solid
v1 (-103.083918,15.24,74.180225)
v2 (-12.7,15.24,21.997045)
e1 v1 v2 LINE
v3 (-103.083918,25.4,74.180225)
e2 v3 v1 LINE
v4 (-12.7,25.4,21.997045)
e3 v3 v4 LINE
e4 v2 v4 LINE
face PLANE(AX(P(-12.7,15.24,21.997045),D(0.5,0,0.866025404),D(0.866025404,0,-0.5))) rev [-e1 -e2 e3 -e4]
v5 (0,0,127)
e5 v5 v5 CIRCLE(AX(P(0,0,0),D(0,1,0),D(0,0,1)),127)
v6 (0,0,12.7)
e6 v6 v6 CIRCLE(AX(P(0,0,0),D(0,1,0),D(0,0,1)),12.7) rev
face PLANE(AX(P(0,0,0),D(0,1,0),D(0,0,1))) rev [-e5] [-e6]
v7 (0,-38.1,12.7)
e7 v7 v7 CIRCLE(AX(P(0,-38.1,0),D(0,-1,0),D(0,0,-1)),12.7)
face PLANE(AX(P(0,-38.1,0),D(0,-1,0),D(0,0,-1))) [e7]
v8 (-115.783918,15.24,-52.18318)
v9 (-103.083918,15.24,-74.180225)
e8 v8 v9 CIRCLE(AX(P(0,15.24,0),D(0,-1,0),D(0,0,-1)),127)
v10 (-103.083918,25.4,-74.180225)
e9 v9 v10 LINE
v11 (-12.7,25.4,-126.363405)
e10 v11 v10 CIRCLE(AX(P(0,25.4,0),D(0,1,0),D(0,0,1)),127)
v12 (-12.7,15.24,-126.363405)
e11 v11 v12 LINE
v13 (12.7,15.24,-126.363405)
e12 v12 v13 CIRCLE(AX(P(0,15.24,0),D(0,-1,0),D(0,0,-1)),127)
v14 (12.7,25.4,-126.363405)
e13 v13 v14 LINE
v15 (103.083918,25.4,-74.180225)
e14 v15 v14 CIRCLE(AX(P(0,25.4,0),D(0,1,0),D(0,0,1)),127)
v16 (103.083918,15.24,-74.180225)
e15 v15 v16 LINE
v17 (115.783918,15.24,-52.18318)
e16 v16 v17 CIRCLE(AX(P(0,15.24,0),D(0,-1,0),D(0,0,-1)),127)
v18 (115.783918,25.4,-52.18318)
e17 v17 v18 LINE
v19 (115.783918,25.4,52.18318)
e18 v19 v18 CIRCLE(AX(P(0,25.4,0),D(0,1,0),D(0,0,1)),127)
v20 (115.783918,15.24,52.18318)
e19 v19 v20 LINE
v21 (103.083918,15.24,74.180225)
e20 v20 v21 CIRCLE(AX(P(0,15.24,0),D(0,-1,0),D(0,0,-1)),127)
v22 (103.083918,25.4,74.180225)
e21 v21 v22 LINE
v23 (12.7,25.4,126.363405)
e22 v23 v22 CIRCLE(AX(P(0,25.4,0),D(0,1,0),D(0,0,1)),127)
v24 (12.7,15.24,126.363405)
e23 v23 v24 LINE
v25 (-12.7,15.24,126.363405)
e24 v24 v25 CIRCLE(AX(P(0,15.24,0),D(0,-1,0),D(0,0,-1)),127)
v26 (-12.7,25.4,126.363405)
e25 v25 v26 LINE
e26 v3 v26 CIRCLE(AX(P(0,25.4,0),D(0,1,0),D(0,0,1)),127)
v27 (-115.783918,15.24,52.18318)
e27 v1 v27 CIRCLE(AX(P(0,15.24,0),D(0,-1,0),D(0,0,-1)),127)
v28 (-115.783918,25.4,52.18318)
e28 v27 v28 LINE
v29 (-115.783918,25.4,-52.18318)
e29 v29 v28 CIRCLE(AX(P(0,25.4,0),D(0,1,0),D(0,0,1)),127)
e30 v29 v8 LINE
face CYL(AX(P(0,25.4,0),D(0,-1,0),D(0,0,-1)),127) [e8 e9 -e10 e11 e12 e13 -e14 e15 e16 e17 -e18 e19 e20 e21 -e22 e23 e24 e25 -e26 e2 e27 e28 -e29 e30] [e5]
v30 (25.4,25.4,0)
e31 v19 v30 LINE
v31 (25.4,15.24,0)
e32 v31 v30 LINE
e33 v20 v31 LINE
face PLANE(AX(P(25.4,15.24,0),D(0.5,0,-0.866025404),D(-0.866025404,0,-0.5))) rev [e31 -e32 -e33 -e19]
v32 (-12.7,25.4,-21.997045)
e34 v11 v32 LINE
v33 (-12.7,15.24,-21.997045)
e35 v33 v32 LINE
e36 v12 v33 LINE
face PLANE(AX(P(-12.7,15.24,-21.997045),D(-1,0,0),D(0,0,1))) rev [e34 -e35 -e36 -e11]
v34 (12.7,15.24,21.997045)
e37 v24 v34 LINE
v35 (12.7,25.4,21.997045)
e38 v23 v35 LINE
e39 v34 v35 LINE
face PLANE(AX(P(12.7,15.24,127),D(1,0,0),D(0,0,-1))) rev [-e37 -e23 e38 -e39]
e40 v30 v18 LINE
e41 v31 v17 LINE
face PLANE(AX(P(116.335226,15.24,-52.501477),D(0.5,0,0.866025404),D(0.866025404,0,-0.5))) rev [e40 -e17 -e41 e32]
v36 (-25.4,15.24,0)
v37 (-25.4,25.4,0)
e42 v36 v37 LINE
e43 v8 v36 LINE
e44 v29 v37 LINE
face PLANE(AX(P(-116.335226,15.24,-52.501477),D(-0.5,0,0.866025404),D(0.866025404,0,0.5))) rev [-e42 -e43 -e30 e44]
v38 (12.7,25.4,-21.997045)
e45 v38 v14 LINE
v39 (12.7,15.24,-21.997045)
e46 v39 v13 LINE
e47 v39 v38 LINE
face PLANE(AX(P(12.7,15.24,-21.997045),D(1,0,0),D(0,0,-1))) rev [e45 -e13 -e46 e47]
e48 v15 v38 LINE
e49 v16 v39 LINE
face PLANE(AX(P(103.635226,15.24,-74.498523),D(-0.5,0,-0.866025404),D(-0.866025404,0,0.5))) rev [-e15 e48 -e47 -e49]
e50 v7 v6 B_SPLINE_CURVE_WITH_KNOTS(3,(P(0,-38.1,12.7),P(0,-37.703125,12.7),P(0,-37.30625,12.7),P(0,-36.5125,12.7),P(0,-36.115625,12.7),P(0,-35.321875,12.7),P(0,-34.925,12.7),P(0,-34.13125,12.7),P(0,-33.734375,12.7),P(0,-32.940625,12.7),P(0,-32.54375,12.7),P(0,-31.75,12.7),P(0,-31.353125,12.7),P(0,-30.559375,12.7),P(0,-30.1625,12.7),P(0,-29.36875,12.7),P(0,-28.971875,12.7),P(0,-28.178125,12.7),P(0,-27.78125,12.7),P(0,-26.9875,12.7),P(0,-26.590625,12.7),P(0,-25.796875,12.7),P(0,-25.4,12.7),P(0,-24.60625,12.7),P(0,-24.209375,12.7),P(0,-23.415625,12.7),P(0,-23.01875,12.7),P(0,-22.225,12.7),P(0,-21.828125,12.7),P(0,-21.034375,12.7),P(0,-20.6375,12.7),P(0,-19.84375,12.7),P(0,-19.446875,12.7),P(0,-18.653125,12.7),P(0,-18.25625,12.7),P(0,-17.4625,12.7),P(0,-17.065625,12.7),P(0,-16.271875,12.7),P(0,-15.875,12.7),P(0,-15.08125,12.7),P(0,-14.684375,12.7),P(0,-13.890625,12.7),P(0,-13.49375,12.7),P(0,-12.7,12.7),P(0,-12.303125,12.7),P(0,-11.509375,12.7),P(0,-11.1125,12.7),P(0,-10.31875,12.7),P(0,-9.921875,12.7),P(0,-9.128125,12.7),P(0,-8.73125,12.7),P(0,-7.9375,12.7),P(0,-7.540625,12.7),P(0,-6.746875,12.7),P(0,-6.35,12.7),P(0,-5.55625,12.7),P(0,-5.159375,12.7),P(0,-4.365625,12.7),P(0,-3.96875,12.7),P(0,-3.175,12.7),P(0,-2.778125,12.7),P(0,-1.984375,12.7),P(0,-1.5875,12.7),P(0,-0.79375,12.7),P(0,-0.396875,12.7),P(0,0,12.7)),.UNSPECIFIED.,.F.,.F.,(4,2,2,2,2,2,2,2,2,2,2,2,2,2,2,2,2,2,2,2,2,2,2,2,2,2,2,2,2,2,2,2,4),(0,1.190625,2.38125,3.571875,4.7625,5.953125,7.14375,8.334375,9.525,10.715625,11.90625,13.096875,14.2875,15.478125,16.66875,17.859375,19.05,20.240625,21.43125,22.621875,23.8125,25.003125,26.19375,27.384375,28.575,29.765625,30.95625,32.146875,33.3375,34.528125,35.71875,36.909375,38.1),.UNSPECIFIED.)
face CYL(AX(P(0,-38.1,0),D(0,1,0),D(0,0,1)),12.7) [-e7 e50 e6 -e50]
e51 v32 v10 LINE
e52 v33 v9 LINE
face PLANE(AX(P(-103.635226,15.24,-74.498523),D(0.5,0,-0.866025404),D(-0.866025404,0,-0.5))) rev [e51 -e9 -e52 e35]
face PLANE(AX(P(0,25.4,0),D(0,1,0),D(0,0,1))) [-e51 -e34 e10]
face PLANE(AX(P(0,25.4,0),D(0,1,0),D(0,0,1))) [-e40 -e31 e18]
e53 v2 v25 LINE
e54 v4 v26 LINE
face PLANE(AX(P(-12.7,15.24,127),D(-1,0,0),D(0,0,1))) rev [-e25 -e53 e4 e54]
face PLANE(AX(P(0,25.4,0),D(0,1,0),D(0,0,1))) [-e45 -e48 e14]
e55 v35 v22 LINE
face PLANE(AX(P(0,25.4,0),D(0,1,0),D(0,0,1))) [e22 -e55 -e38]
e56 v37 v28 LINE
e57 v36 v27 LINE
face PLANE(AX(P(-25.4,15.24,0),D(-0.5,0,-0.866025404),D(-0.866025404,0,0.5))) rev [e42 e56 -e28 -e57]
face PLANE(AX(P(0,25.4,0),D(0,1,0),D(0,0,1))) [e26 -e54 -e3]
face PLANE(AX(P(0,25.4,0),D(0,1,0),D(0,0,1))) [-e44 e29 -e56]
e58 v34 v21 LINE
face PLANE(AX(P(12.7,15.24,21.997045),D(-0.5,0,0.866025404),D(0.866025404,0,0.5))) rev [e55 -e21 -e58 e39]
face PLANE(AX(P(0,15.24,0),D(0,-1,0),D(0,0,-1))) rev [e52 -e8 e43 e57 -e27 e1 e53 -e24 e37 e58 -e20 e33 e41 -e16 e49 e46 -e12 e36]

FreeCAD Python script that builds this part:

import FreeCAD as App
import Part
import Sketcher
from FreeCAD import Vector
Q = App.Units.Quantity

doc = App.newDocument("Part")
body = doc.addObject("PartDesign::Body", "Body")

sketch1 = doc.addObject("Sketcher::SketchObject", "Sketch")
body.addObject(sketch1)
sketch1.AttachmentSupport = (doc.XZ_Plane, [""])
sketch1.MapMode = "FlatFace"
sketch1.addGeometry(Part.Circle(Vector(0, 0, 0), Vector(0, 0, 1), 127), False)
sketch1.addConstraint([
    Sketcher.Constraint("Coincident", 0, 3, -1, 1),
    Sketcher.Constraint("Diameter", 0, Q("10 in")),
])
pad1 = doc.addObject("PartDesign::Pad", "Pad")
body.addObject(pad1)
pad1.Profile = sketch1
pad1.Length = Q("1 in")
pad1.Reversed = True

sketch2 = doc.addObject("Sketcher::SketchObject", "Sketch001")
body.addObject(sketch2)
sketch2.AttachmentSupport = (doc.XZ_Plane, [""])
sketch2.MapMode = "FlatFace"
sketch2.AttachmentOffset = App.Placement(Vector(0, 0, -1 * 25.4), App.Rotation())
sketch2.addGeometry([
    Part.LineSegment(Vector(13, 22, 0), Vector(104, 74, 0)),
    Part.LineSegment(Vector(104, 74, 0), Vector(138, 74, 0)),
    Part.LineSegment(Vector(138, 74, 0), Vector(116, 53, 0)),
    Part.LineSegment(Vector(116, 53, 0), Vector(25, 0, 0)),
    Part.LineSegment(Vector(25, 0, 0), Vector(116, -53, 0)),
    Part.LineSegment(Vector(116, -53, 0), Vector(130, -77, 0)),
    Part.LineSegment(Vector(130, -77, 0), Vector(104, -74, 0)),
    Part.LineSegment(Vector(104, -74, 0), Vector(13, -22, 0)),
    Part.LineSegment(Vector(13, -22, 0), Vector(13, -127, 0)),
    Part.LineSegment(Vector(13, -127, 0), Vector(0, -158, 0)),
    Part.LineSegment(Vector(0, -158, 0), Vector(-13, -127, 0)),
    Part.LineSegment(Vector(-13, -127, 0), Vector(-13, -22, 0)),
    Part.LineSegment(Vector(-13, -22, 0), Vector(-104, -74, 0)),
    Part.LineSegment(Vector(-104, -74, 0), Vector(-125, -78, 0)),
    Part.LineSegment(Vector(-125, -78, 0), Vector(-116, -53, 0)),
    Part.LineSegment(Vector(-116, -53, 0), Vector(-25, 0, 0)),
    Part.LineSegment(Vector(-25, 0, 0), Vector(-116, 53, 0)),
    Part.LineSegment(Vector(-116, 53, 0), Vector(-133, 78, 0)),
    Part.LineSegment(Vector(-133, 78, 0), Vector(-104, 74, 0)),
    Part.LineSegment(Vector(-104, 74, 0), Vector(-13, 22, 0)),
    Part.LineSegment(Vector(-13, 22, 0), Vector(-13, 127, 0)),
    Part.LineSegment(Vector(-13, 127, 0), Vector(13, 156, 0)),
    Part.LineSegment(Vector(13, 156, 0), Vector(13, 22, 0)),
], False)
sketch2.addConstraint([
    Sketcher.Constraint("Coincident", 0, 2, 1, 1),
    Sketcher.Constraint("Coincident", 1, 2, 2, 1),
    Sketcher.Constraint("Coincident", 2, 2, 3, 1),
    Sketcher.Constraint("Coincident", 3, 2, 4, 1),
    Sketcher.Constraint("Coincident", 4, 2, 5, 1),
    Sketcher.Constraint("Coincident", 5, 2, 6, 1),
    Sketcher.Constraint("Coincident", 6, 2, 7, 1),
    Sketcher.Constraint("Coincident", 7, 2, 8, 1),
    Sketcher.Constraint("Coincident", 8, 2, 9, 1),
    Sketcher.Constraint("Coincident", 9, 2, 10, 1),
    Sketcher.Constraint("Coincident", 10, 2, 11, 1),
    Sketcher.Constraint("Coincident", 11, 2, 12, 1),
    Sketcher.Constraint("Coincident", 12, 2, 13, 1),
    Sketcher.Constraint("Coincident", 13, 2, 14, 1),
    Sketcher.Constraint("Coincident", 14, 2, 15, 1),
    Sketcher.Constraint("Coincident", 15, 2, 16, 1),
    Sketcher.Constraint("Coincident", 16, 2, 17, 1),
    Sketcher.Constraint("Coincident", 17, 2, 18, 1),
    Sketcher.Constraint("Coincident", 18, 2, 19, 1),
    Sketcher.Constraint("Coincident", 19, 2, 20, 1),
    Sketcher.Constraint("Coincident", 20, 2, 21, 1),
    Sketcher.Constraint("Coincident", 21, 2, 22, 1),
    Sketcher.Constraint("Coincident", 22, 2, 0, 1),
    Sketcher.Constraint("Horizontal", 1),
    Sketcher.Constraint("Vertical", 8),
    Sketcher.Constraint("Vertical", 11),
    Sketcher.Constraint("Vertical", 20),
    Sketcher.Constraint("Vertical", 22),
    Sketcher.Constraint("Symmetric", 0, 2, 12, 2, -1, 1),
    Sketcher.Constraint("Symmetric", 2, 2, 14, 2, -1, 1),
    Sketcher.Constraint("Symmetric", 3, 2, 15, 2, -1, 1),
    Sketcher.Constraint("Symmetric", 4, 2, 16, 2, -1, 1),
    Sketcher.Constraint("Symmetric", 6, 2, 18, 2, -1, 1),
    Sketcher.Constraint("Symmetric", 7, 2, 19, 2, -1, 1),
    Sketcher.Constraint("Symmetric", 11, 2, 22, 2, -1, 1),
    Sketcher.Constraint("Symmetric", 8, 2, 10, 2, -2),
    Sketcher.Constraint("Symmetric", 6, 2, 12, 2, -2),
    Sketcher.Constraint("Symmetric", 4, 2, 14, 2, -2),
    Sketcher.Constraint("PointOnObject", 3, 2, -1),
    Sketcher.Constraint("PointOnObject", 9, 2, -2),
    Sketcher.Constraint("Parallel", 0, 3),
    Sketcher.Constraint("Parallel", 4, 7),
    Sketcher.Constraint("Parallel", 6, 18),
    Sketcher.Constraint("Equal", 11, 20),
    Sketcher.Constraint("Equal", 0, 3),
    Sketcher.Constraint("DistanceX", -1, 1, 3, 2, Q("1 in")),
    Sketcher.Constraint("DistanceY", 8, 2, -1, 1, Q("5 in")),
    Sketcher.Constraint("Angle", 0, Q("30 deg")),
    Sketcher.Constraint("Angle", 2, Q("-135 deg")),
    Sketcher.Constraint("DistanceY", 4, 2, 0, 2, Q("5 in")),
    Sketcher.Constraint("DistanceX", 10, 2, 8, 2, Q("1 in")),
    Sketcher.Constraint("DistanceY", 22, 2, 22, 1, 134.139658),
    Sketcher.Constraint("DistanceY", 9, 2, 5, 2, 80.4905),
    Sketcher.Constraint("DistanceY", 13, 2, 17, 2, 156.225801),
    Sketcher.Constraint("Distance", 2, 31.10852),
    Sketcher.Constraint("Distance", 5, 28.634779),
    Sketcher.Constraint("Distance", 17, 30.582119),
    Sketcher.Constraint("DistanceX", -1, 1, 5, 2, 130.311019),
    Sketcher.Constraint("DistanceX", 13, 2, 12, 2, 21.25713),
])
pocket1 = doc.addObject("PartDesign::Pocket", "Pocket")
body.addObject(pocket1)
pocket1.Profile = sketch2
pocket1.Length = Q("0.4 in")
pocket1.Reversed = True

sketch3 = doc.addObject("Sketcher::SketchObject", "Sketch002")
body.addObject(sketch3)
sketch3.AttachmentSupport = (doc.XZ_Plane, [""])
sketch3.MapMode = "FlatFace"
sketch3.addGeometry(Part.Circle(Vector(0, 0, 0), Vector(0, 0, 1), 13), False)
sketch3.addConstraint([
    Sketcher.Constraint("Coincident", 0, 3, -1, 1),
    Sketcher.Constraint("Diameter", 0, Q("1 in")),
])
pad2 = doc.addObject("PartDesign::Pad", "Pad001")
body.addObject(pad2)
pad2.Profile = sketch3
pad2.Length = Q("1.5 in")

doc.recompute()
